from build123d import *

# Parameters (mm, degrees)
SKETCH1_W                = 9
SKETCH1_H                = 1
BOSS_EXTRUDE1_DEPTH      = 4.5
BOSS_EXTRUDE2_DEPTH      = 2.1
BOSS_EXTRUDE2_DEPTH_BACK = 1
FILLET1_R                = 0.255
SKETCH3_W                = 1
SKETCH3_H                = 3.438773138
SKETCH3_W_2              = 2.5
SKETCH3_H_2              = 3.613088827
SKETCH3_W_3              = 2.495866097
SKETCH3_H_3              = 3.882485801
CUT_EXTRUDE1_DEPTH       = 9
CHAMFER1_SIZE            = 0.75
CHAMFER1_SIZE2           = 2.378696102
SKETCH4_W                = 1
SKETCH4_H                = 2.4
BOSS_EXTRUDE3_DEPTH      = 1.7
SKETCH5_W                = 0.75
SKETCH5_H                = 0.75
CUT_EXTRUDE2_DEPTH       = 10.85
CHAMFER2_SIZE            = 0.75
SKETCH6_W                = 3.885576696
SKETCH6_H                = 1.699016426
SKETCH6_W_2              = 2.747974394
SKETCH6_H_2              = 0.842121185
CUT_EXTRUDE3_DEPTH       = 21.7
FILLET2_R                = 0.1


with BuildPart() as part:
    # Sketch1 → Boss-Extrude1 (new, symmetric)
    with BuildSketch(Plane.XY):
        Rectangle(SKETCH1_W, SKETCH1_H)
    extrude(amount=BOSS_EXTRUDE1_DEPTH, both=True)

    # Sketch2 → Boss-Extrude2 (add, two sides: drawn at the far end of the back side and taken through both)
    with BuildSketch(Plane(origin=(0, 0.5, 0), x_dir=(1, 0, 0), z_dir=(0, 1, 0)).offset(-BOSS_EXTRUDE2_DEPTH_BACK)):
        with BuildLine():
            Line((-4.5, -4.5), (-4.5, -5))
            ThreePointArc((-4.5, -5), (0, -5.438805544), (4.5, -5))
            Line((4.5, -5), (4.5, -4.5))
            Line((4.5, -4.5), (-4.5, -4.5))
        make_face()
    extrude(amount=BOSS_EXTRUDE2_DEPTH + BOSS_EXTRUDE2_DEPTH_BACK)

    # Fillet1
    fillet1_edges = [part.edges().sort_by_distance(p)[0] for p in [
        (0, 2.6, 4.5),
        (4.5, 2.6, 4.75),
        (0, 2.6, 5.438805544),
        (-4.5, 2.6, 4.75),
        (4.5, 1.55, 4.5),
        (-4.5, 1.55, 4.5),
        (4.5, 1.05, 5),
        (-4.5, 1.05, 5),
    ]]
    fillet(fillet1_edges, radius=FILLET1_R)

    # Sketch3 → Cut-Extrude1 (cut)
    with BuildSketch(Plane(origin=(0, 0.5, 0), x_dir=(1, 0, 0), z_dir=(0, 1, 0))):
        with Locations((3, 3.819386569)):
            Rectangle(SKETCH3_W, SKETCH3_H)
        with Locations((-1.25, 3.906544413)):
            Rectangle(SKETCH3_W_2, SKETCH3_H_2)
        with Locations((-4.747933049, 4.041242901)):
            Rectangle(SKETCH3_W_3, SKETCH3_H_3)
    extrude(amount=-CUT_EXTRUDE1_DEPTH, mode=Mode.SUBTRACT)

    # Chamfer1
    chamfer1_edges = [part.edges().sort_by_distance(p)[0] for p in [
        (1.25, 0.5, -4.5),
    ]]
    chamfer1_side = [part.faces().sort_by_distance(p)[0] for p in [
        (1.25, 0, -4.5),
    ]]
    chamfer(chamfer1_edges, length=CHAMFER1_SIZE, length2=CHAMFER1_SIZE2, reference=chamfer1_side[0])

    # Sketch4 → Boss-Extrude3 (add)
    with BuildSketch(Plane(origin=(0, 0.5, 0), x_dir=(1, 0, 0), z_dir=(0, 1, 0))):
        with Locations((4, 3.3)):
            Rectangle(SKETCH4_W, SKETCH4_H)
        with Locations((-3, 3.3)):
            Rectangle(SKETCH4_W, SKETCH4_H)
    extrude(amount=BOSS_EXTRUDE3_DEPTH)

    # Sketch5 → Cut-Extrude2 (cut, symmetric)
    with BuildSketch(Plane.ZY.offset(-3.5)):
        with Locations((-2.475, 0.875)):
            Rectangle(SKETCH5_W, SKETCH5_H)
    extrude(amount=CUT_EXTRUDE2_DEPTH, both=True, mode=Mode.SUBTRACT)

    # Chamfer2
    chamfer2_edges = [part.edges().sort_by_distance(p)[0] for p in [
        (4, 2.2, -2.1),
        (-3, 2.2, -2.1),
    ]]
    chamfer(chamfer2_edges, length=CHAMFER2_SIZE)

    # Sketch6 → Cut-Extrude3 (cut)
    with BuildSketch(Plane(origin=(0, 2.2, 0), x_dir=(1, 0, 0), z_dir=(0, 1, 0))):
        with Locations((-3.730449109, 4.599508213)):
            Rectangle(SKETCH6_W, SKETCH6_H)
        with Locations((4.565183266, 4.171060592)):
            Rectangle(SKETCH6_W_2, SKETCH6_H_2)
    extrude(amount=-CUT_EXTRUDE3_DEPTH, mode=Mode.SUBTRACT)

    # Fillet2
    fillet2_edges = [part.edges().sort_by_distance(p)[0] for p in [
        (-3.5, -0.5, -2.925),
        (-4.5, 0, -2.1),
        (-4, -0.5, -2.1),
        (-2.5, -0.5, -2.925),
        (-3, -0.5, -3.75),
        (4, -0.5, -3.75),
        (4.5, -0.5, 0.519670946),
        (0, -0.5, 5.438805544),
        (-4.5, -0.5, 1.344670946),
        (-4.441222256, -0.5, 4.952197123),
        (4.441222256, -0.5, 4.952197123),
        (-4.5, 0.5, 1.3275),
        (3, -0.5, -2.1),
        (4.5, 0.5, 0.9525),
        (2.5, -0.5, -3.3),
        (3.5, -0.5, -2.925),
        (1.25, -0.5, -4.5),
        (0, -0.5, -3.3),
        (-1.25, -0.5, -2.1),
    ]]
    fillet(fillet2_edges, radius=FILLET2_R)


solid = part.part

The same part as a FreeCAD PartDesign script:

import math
import FreeCAD as App
import Part
import Sketcher
from FreeCAD import Vector


def edges_at(feature, points):
    """Names of the edges that pass closest to the given points."""
    edges = feature.Shape.Edges
    near = lambda p: min(range(len(edges)), key=lambda i: edges[i].distToShape(Part.Vertex(*p))[0])
    return sorted({f"Edge{near(p) + 1}" for p in points})

doc = App.newDocument("Part")
body = doc.addObject("PartDesign::Body", "Body")

sketch1 = doc.addObject("Sketcher::SketchObject", "Sketch")
body.addObject(sketch1)
sketch1.AttachmentSupport = (doc.XY_Plane, [""])
sketch1.MapMode = "FlatFace"
sketch1.addGeometry(Part.LineSegment(Vector(-4.5, 0.5, 0), Vector(-4.5, -0.5, 0)), False)
sketch1.addGeometry(Part.LineSegment(Vector(-4.5, -0.5, 0), Vector(4.5, -0.5, 0)), False)
sketch1.addGeometry(Part.LineSegment(Vector(4.5, -0.5, 0), Vector(4.5, 0.5, 0)), False)
sketch1.addGeometry(Part.LineSegment(Vector(4.5, 0.5, 0), Vector(-4.5, 0.5, 0)), False)
sketch1.addConstraint(Sketcher.Constraint("Coincident", 0, 2, 1, 1))
sketch1.addConstraint(Sketcher.Constraint("Coincident", 1, 2, 2, 1))
sketch1.addConstraint(Sketcher.Constraint("Coincident", 2, 2, 3, 1))
sketch1.addConstraint(Sketcher.Constraint("Coincident", 3, 2, 0, 1))
sketch1.addConstraint(Sketcher.Constraint("Vertical", 0))
sketch1.addConstraint(Sketcher.Constraint("Horizontal", 1))
sketch1.addConstraint(Sketcher.Constraint("Vertical", 2))
sketch1.addConstraint(Sketcher.Constraint("Horizontal", 3))
sketch1.addConstraint(Sketcher.Constraint("Symmetric", 0, 2, 2, 2, -1, 1))
sketch1.addConstraint(Sketcher.Constraint("DistanceX", 1, 1, 1, 2, 9.0))
sketch1.addConstraint(Sketcher.Constraint("DistanceY", 0, 2, 0, 1, 1.0))
pad1 = doc.addObject("PartDesign::Pad", "Pad")
body.addObject(pad1)
pad1.Profile = sketch1
pad1.Length = 9
pad1.Midplane = True

sketch2 = doc.addObject("Sketcher::SketchObject", "Sketch001")
body.addObject(sketch2)
sketch2.AttachmentSupport = (doc.XZ_Plane, [""])
sketch2.MapMode = "FlatFace"
sketch2.AttachmentOffset = App.Placement(Vector(0, 0, -0.5), App.Rotation())
sketch2.addGeometry(Part.LineSegment(Vector(-4.5, 4.5, 0), Vector(-4.5, 5, 0)), False)
sketch2.addGeometry(Part.ArcOfCircle(Part.Circle(Vector(0, -17.9, 0), Vector(0, 0, 1), 23.3), math.radians(79), math.radians(101)), False)
sketch2.addGeometry(Part.LineSegment(Vector(4.5, 5, 0), Vector(4.5, 4.5, 0)), False)
sketch2.addGeometry(Part.LineSegment(Vector(4.5, 4.5, 0), Vector(-4.5, 4.5, 0)), False)
sketch2.addConstraint(Sketcher.Constraint("Coincident", 0, 2, 1, 2))
sketch2.addConstraint(Sketcher.Constraint("Coincident", 1, 1, 2, 1))
sketch2.addConstraint(Sketcher.Constraint("Coincident", 2, 2, 3, 1))
sketch2.addConstraint(Sketcher.Constraint("Coincident", 3, 2, 0, 1))
sketch2.addConstraint(Sketcher.Constraint("Vertical", 0))
sketch2.addConstraint(Sketcher.Constraint("Vertical", 2))
sketch2.addConstraint(Sketcher.Constraint("Horizontal", 3))
sketch2.addConstraint(Sketcher.Constraint("Symmetric", 0, 2, 1, 1, -2))
sketch2.addConstraint(Sketcher.Constraint("DistanceX", 3, 2, 3, 1, 9.0))
sketch2.addConstraint(Sketcher.Constraint("DistanceY", 0, 1, 0, 2, 0.5))
sketch2.addConstraint(Sketcher.Constraint("DistanceY", -1, 1, 0, 2, 5.0))
sketch2.addConstraint(Sketcher.Constraint("Radius", 1, 23.293405))
pad2 = doc.addObject("PartDesign::Pad", "Pad001")
body.addObject(pad2)
pad2.Profile = sketch2
pad2.Type = "TwoLengths"
pad2.Length = 2.1
pad2.Length2 = 1
pad2.Reversed = True
doc.recompute()

fillet = doc.addObject("PartDesign::Fillet", "Fillet")
body.addObject(fillet)
fillet.Base = (pad2, edges_at(pad2, [
    (0, 2.6, 4.5),
    (4.5, 2.6, 4.75),
    (0, 2.6, 5.439),
    (-4.5, 2.6, 4.75),
    (4.5, 1.55, 4.5),
    (-4.5, 1.55, 4.5),
    (4.5, 1.05, 5),
    (-4.5, 1.05, 5),
]))
fillet.Radius = 0.255

sketch3 = doc.addObject("Sketcher::SketchObject", "Sketch002")
body.addObject(sketch3)
sketch3.AttachmentSupport = (doc.XZ_Plane, [""])
sketch3.MapMode = "FlatFace"
sketch3.AttachmentOffset = App.Placement(Vector(0, 0, -0.5), App.Rotation())
sketch3.addGeometry(Part.LineSegment(Vector(2.5, -5.5, 0), Vector(2.5, -2.1, 0)), False)
sketch3.addGeometry(Part.LineSegment(Vector(2.5, -2.1, 0), Vector(3.5, -2.1, 0)), False)
sketch3.addGeometry(Part.LineSegment(Vector(3.5, -2.1, 0), Vector(3.5, -5.5, 0)), False)
sketch3.addGeometry(Part.LineSegment(Vector(3.5, -5.5, 0), Vector(2.5, -5.5, 0)), False)
sketch3.addGeometry(Part.LineSegment(Vector(-2.5, -5.7, 0), Vector(-2.5, -2.1, 0)), False)
sketch3.addGeometry(Part.LineSegment(Vector(-2.5, -2.1, 0), Vector(0, -2.1, 0)), False)
sketch3.addGeometry(Part.LineSegment(Vector(0, -2.1, 0), Vector(0, -5.7, 0)), False)
sketch3.addGeometry(Part.LineSegment(Vector(0, -5.7, 0), Vector(-2.5, -5.7, 0)), False)
sketch3.addGeometry(Part.LineSegment(Vector(-6, -6, 0), Vector(-6, -2.1, 0)), False)
sketch3.addGeometry(Part.LineSegment(Vector(-6, -2.1, 0), Vector(-3.5, -2.1, 0)), False)
sketch3.addGeometry(Part.LineSegment(Vector(-3.5, -2.1, 0), Vector(-3.5, -6, 0)), False)
sketch3.addGeometry(Part.LineSegment(Vector(-3.5, -6, 0), Vector(-6, -6, 0)), False)
sketch3.addConstraint(Sketcher.Constraint("Coincident", 0, 2, 1, 1))
sketch3.addConstraint(Sketcher.Constraint("Coincident", 1, 2, 2, 1))
sketch3.addConstraint(Sketcher.Constraint("Coincident", 2, 2, 3, 1))
sketch3.addConstraint(Sketcher.Constraint("Coincident", 3, 2, 0, 1))
sketch3.addConstraint(Sketcher.Constraint("Coincident", 4, 2, 5, 1))
sketch3.addConstraint(Sketcher.Constraint("Coincident", 5, 2, 6, 1))
sketch3.addConstraint(Sketcher.Constraint("Coincident", 6, 2, 7, 1))
sketch3.addConstraint(Sketcher.Constraint("Coincident", 7, 2, 4, 1))
sketch3.addConstraint(Sketcher.Constraint("Coincident", 8, 2, 9, 1))
sketch3.addConstraint(Sketcher.Constraint("Coincident", 9, 2, 10, 1))
sketch3.addConstraint(Sketcher.Constraint("Coincident", 10, 2, 11, 1))
sketch3.addConstraint(Sketcher.Constraint("Coincident", 11, 2, 8, 1))
sketch3.addConstraint(Sketcher.Constraint("Vertical", 0))
sketch3.addConstraint(Sketcher.Constraint("Horizontal", 1))
sketch3.addConstraint(Sketcher.Constraint("Vertical", 2))
sketch3.addConstraint(Sketcher.Constraint("Horizontal", 3))
sketch3.addConstraint(Sketcher.Constraint("Vertical", 4))
sketch3.addConstraint(Sketcher.Constraint("Horizontal", 5))
sketch3.addConstraint(Sketcher.Constraint("Vertical", 6))
sketch3.addConstraint(Sketcher.Constraint("Horizontal", 7))
sketch3.addConstraint(Sketcher.Constraint("Vertical", 8))
sketch3.addConstraint(Sketcher.Constraint("Horizontal", 9))
sketch3.addConstraint(Sketcher.Constraint("Vertical", 10))
sketch3.addConstraint(Sketcher.Constraint("Horizontal", 11))
sketch3.addConstraint(Sketcher.Constraint("Symmetric", 0, 2, 4, 2, -2))
sketch3.addConstraint(Sketcher.Constraint("Symmetric", 1, 2, 9, 2, -2))
sketch3.addConstraint(Sketcher.Constraint("PointOnObject", 5, 2, -2))
sketch3.addConstraint(Sketcher.Constraint("DistanceX", 1, 1, 1, 2, 1.0))
sketch3.addConstraint(Sketcher.Constraint("DistanceX", 5, 1, 5, 2, 2.5))
sketch3.addConstraint(Sketcher.Constraint("DistanceY", 0, 2, -1, 1, 2.1))
sketch3.addConstraint(Sketcher.Constraint("DistanceY", 4, 1, 4, 2, 3.613089))
sketch3.addConstraint(Sketcher.Constraint("DistanceX", 9, 1, 9, 2, 2.495866))
sketch3.addConstraint(Sketcher.Constraint("DistanceY", 0, 1, 0, 2, 3.438773))
sketch3.addConstraint(Sketcher.Constraint("DistanceY", 8, 1, 8, 2, 3.882486))
pocket1 = doc.addObject("PartDesign::Pocket", "Pocket")
body.addObject(pocket1)
pocket1.Profile = sketch3
pocket1.Length = 9
pocket1.Reversed = True
doc.recompute()

chamfer = doc.addObject("PartDesign::Chamfer", "Chamfer")
body.addObject(chamfer)
chamfer.Base = (pocket1, edges_at(pocket1, [(1.25, 0.5, -4.5)]))
chamfer.ChamferType = "Two distances"
chamfer.Size = 0.75
chamfer.Size2 = 2.378696

sketch4 = doc.addObject("Sketcher::SketchObject", "Sketch003")
body.addObject(sketch4)
sketch4.AttachmentSupport = (doc.XZ_Plane, [""])
sketch4.MapMode = "FlatFace"
sketch4.AttachmentOffset = App.Placement(Vector(0, 0, -0.5), App.Rotation())
sketch4.addGeometry(Part.LineSegment(Vector(3.5, -4.5, 0), Vector(3.5, -2.1, 0)), False)
sketch4.addGeometry(Part.LineSegment(Vector(3.5, -2.1, 0), Vector(4.5, -2.1, 0)), False)
sketch4.addGeometry(Part.LineSegment(Vector(4.5, -2.1, 0), Vector(4.5, -4.5, 0)), False)
sketch4.addGeometry(Part.LineSegment(Vector(4.5, -4.5, 0), Vector(3.5, -4.5, 0)), False)
sketch4.addGeometry(Part.LineSegment(Vector(-3.5, -4.5, 0), Vector(-3.5, -2.1, 0)), False)
sketch4.addGeometry(Part.LineSegment(Vector(-3.5, -2.1, 0), Vector(-2.5, -2.1, 0)), False)
sketch4.addGeometry(Part.LineSegment(Vector(-2.5, -2.1, 0), Vector(-2.5, -4.5, 0)), False)
sketch4.addGeometry(Part.LineSegment(Vector(-2.5, -4.5, 0), Vector(-3.5, -4.5, 0)), False)
sketch4.addConstraint(Sketcher.Constraint("Coincident", 0, 2, 1, 1))
sketch4.addConstraint(Sketcher.Constraint("Coincident", 1, 2, 2, 1))
sketch4.addConstraint(Sketcher.Constraint("Coincident", 2, 2, 3, 1))
sketch4.addConstraint(Sketcher.Constraint("Coincident", 3, 2, 0, 1))
sketch4.addConstraint(Sketcher.Constraint("Coincident", 4, 2, 5, 1))
sketch4.addConstraint(Sketcher.Constraint("Coincident", 5, 2, 6, 1))
sketch4.addConstraint(Sketcher.Constraint("Coincident", 6, 2, 7, 1))
sketch4.addConstraint(Sketcher.Constraint("Coincident", 7, 2, 4, 1))
sketch4.addConstraint(Sketcher.Constraint("Vertical", 0))
sketch4.addConstraint(Sketcher.Constraint("Horizontal", 1))
sketch4.addConstraint(Sketcher.Constraint("Vertical", 2))
sketch4.addConstraint(Sketcher.Constraint("Horizontal", 3))
sketch4.addConstraint(Sketcher.Constraint("Vertical", 4))
sketch4.addConstraint(Sketcher.Constraint("Horizontal", 5))
sketch4.addConstraint(Sketcher.Constraint("Vertical", 6))
sketch4.addConstraint(Sketcher.Constraint("Horizontal", 7))
sketch4.addConstraint(Sketcher.Constraint("Symmetric", 0, 2, 4, 2, -2))
sketch4.addConstraint(Sketcher.Constraint("Horizontal", 3, 2, 6, 2))
sketch4.addConstraint(Sketcher.Constraint("Equal", 3, 5))
sketch4.addConstraint(Sketcher.Constraint("DistanceX", 1, 1, 1, 2, 1.0))
sketch4.addConstraint(Sketcher.Constraint("DistanceY", 0, 1, 0, 2, 2.4))
sketch4.addConstraint(Sketcher.Constraint("DistanceX", 4, 2, 0, 2, 7.0))
sketch4.addConstraint(Sketcher.Constraint("DistanceY", 0, 2, -1, 1, 2.1))
pad3 = doc.addObject("PartDesign::Pad", "Pad002")
body.addObject(pad3)
pad3.Profile = sketch4
pad3.Length = 1.7
pad3.Reversed = True

sketch5 = doc.addObject("Sketcher::SketchObject", "Sketch004")
body.addObject(sketch5)
sketch5.AttachmentSupport = (doc.YZ_Plane, [""])
sketch5.MapMode = "FlatFace"
sketch5.AttachmentOffset = App.Placement(Vector(0, 0, 3.5), App.Rotation())
sketch5.addGeometry(Part.LineSegment(Vector(1.2, -2.9, 0), Vector(0.5, -2.9, 0)), False)
sketch5.addGeometry(Part.LineSegment(Vector(0.5, -2.9, 0), Vector(0.5, -2.1, 0)), False)
sketch5.addGeometry(Part.LineSegment(Vector(0.5, -2.1, 0), Vector(1.2, -2.1, 0)), False)
sketch5.addGeometry(Part.LineSegment(Vector(1.2, -2.1, 0), Vector(1.2, -2.9, 0)), False)
sketch5.addConstraint(Sketcher.Constraint("Coincident", 0, 2, 1, 1))
sketch5.addConstraint(Sketcher.Constraint("Coincident", 1, 2, 2, 1))
sketch5.addConstraint(Sketcher.Constraint("Coincident", 2, 2, 3, 1))
sketch5.addConstraint(Sketcher.Constraint("Coincident", 3, 2, 0, 1))
sketch5.addConstraint(Sketcher.Constraint("Horizontal", 0))
sketch5.addConstraint(Sketcher.Constraint("Vertical", 1))
sketch5.addConstraint(Sketcher.Constraint("Horizontal", 2))
sketch5.addConstraint(Sketcher.Constraint("Vertical", 3))
sketch5.addConstraint(Sketcher.Constraint("Equal", 2, 1))
sketch5.addConstraint(Sketcher.Constraint("DistanceX", 0, 2, 0, 1, 0.75))
sketch5.addConstraint(Sketcher.Constraint("DistanceX", -1, 1, 0, 2, 0.5))
sketch5.addConstraint(Sketcher.Constraint("DistanceY", 1, 2, -1, 1, 2.1))
pocket2 = doc.addObject("PartDesign::Pocket", "Pocket001")
body.addObject(pocket2)
pocket2.Profile = sketch5
pocket2.Length = 21.7
pocket2.Midplane = True
doc.recompute()

chamfer2 = doc.addObject("PartDesign::Chamfer", "Chamfer001")
body.addObject(chamfer2)
chamfer2.Base = (pocket2, edges_at(pocket2, [(4, 2.2, -2.1), (-3, 2.2, -2.1)]))
chamfer2.Size = 0.75

sketch6 = doc.addObject("Sketcher::SketchObject", "Sketch005")
body.addObject(sketch6)
sketch6.AttachmentSupport = (doc.XZ_Plane, [""])
sketch6.MapMode = "FlatFace"
sketch6.AttachmentOffset = App.Placement(Vector(0, 0, -2.2), App.Rotation())
sketch6.addGeometry(Part.LineSegment(Vector(-5.7, -5.4, 0), Vector(-5.7, -3.8, 0)), False)
sketch6.addGeometry(Part.LineSegment(Vector(-5.7, -3.8, 0), Vector(-1.8, -3.8, 0)), False)
sketch6.addGeometry(Part.LineSegment(Vector(-1.8, -3.8, 0), Vector(-1.8, -5.4, 0)), False)
sketch6.addGeometry(Part.LineSegment(Vector(-1.8, -5.4, 0), Vector(-5.7, -5.4, 0)), False)
sketch6.addGeometry(Part.LineSegment(Vector(3.2, -4.6, 0), Vector(3.2, -3.7, 0)), False)
sketch6.addGeometry(Part.LineSegment(Vector(3.2, -3.7, 0), Vector(5.9, -3.7, 0)), False)
sketch6.addGeometry(Part.LineSegment(Vector(5.9, -3.7, 0), Vector(5.9, -4.6, 0)), False)
sketch6.addGeometry(Part.LineSegment(Vector(5.9, -4.6, 0), Vector(3.2, -4.6, 0)), False)
sketch6.addConstraint(Sketcher.Constraint("Coincident", 0, 2, 1, 1))
sketch6.addConstraint(Sketcher.Constraint("Coincident", 1, 2, 2, 1))
sketch6.addConstraint(Sketcher.Constraint("Coincident", 2, 2, 3, 1))
sketch6.addConstraint(Sketcher.Constraint("Coincident", 3, 2, 0, 1))
sketch6.addConstraint(Sketcher.Constraint("Coincident", 4, 2, 5, 1))
sketch6.addConstraint(Sketcher.Constraint("Coincident", 5, 2, 6, 1))
sketch6.addConstraint(Sketcher.Constraint("Coincident", 6, 2, 7, 1))
sketch6.addConstraint(Sketcher.Constraint("Coincident", 7, 2, 4, 1))
sketch6.addConstraint(Sketcher.Constraint("Vertical", 0))
sketch6.addConstraint(Sketcher.Constraint("Horizontal", 1))
sketch6.addConstraint(Sketcher.Constraint("Vertical", 2))
sketch6.addConstraint(Sketcher.Constraint("Horizontal", 3))
sketch6.addConstraint(Sketcher.Constraint("Vertical", 4))
sketch6.addConstraint(Sketcher.Constraint("Horizontal", 5))
sketch6.addConstraint(Sketcher.Constraint("Vertical", 6))
sketch6.addConstraint(Sketcher.Constraint("Horizontal", 7))
sketch6.addConstraint(Sketcher.Constraint("Horizontal", 1, 2, 4, 2))
sketch6.addConstraint(Sketcher.Constraint("DistanceY", 0, 2, -1, 1, 3.75))
sketch6.addConstraint(Sketcher.Constraint("DistanceY", 4, 1, 4, 2, 0.842121))
sketch6.addConstraint(Sketcher.Constraint("DistanceX", 1, 1, 1, 2, 3.885577))
sketch6.addConstraint(Sketcher.Constraint("DistanceX", 5, 1, 5, 2, 2.747974))
sketch6.addConstraint(Sketcher.Constraint("DistanceY", 0, 1, 0, 2, 1.699016))
sketch6.addConstraint(Sketcher.Constraint("DistanceX", 1, 2, -1, 1, 1.787661))
sketch6.addConstraint(Sketcher.Constraint("DistanceX", -1, 1, 5, 2, 5.93917))
pocket3 = doc.addObject("PartDesign::Pocket", "Pocket002")
body.addObject(pocket3)
pocket3.Profile = sketch6
pocket3.Length = 21.7
pocket3.Reversed = True
doc.recompute()

fillet2 = doc.addObject("PartDesign::Fillet", "Fillet001")
body.addObject(fillet2)
fillet2.Base = (pocket3, edges_at(pocket3, [
    (-3.5, -0.5, -2.925),
    (-4.5, 0, -2.1),
    (-4, -0.5, -2.1),
    (-2.5, -0.5, -2.925),
    (-3, -0.5, -3.75),
    (4, -0.5, -3.75),
    (4.5, -0.5, 0.52),
    (0, -0.5, 5.439),
    (-4.5, -0.5, 1.345),
    (-4.441, -0.5, 4.952),
    (4.441, -0.5, 4.952),
    (-4.5, 0.5, 1.327),
    (3, -0.5, -2.1),
    (4.5, 0.5, 0.953),
    (2.5, -0.5, -3.3),
    (3.5, -0.5, -2.925),
    (1.25, -0.5, -4.5),
    (0, -0.5, -3.3),
    (-1.25, -0.5, -2.1),
]))
fillet2.Radius = 0.1

doc.recompute()
